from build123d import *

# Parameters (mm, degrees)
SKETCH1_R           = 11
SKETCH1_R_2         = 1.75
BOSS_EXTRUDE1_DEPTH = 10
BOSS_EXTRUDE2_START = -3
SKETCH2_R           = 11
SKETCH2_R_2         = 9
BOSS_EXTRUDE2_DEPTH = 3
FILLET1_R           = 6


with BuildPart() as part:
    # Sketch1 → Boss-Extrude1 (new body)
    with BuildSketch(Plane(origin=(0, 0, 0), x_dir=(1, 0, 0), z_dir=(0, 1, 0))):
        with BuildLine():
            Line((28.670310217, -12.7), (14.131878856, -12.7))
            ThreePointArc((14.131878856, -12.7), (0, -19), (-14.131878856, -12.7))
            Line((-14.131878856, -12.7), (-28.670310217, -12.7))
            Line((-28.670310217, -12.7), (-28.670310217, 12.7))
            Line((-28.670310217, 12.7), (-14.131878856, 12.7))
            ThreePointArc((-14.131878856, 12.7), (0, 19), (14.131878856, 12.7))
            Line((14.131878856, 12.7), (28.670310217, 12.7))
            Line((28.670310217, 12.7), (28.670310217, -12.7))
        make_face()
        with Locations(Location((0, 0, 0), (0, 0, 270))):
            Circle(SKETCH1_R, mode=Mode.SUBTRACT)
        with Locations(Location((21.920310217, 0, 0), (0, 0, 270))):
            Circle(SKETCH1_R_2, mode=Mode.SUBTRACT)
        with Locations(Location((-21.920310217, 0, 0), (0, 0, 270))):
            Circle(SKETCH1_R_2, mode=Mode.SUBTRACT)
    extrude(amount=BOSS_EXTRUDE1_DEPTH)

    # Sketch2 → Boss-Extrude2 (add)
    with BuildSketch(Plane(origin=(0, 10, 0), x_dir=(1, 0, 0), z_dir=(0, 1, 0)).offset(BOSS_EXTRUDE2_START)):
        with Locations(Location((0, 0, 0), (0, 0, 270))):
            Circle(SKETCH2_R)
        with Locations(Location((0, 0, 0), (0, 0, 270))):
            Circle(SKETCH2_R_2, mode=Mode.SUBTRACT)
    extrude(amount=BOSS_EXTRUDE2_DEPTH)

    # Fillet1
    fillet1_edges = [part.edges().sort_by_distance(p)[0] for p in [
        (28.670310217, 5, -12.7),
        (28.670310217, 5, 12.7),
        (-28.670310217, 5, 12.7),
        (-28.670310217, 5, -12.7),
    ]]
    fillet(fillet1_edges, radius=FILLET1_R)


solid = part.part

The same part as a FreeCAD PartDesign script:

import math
import FreeCAD as App
import Part
import Sketcher

V = App.Vector


def edges_at(feature, points):
    """Names of the edges that pass closest to the given points."""
    edges = feature.Shape.Edges
    near = lambda p: min(range(len(edges)), key=lambda i: edges[i].distToShape(Part.Vertex(*p))[0])
    return sorted({f"Edge{near(p) + 1}" for p in points})

doc = App.newDocument("Part")
body = doc.addObject("PartDesign::Body", "Body")

sketch1 = body.newObject("Sketcher::SketchObject", "Sketch")
sketch1.AttachmentSupport = (doc.getObject("XZ_Plane"), [""])
sketch1.MapMode = "FlatFace"
sketch1.addGeometry([
    Part.LineSegment(V(14.1, 12.7, 0), V(28.7, 12.7, 0)),
    Part.LineSegment(V(28.7, 12.7, 0), V(28.7, -12.7, 0)),
    Part.LineSegment(V(28.7, -12.7, 0), V(14.1, -12.7, 0)),
    Part.ArcOfCircle(Part.Circle(V(0, 0, 0), V(0, 0, 1), 19), math.radians(-138), math.radians(-42)),
    Part.LineSegment(V(-14.1, -12.7, 0), V(-28.7, -12.7, 0)),
    Part.LineSegment(V(-28.7, -12.7, 0), V(-28.7, 12.7, 0)),
    Part.LineSegment(V(-28.7, 12.7, 0), V(-14.1, 12.7, 0)),
    Part.ArcOfCircle(Part.Circle(V(0, 0, 0), V(0, 0, 1), 19), math.radians(42), math.radians(138)),
    Part.Circle(V(21.9, 0, 0), V(0, 0, 1), 1.8),
    Part.Circle(V(0, 0, 0), V(0, 0, 1), 11),
    Part.Circle(V(-21.9, 0, 0), V(0, 0, 1), 1.8),
], False)
sketch1.addConstraint([
    Sketcher.Constraint("Coincident", 0, 2, 1, 1),
    Sketcher.Constraint("Coincident", 1, 2, 2, 1),
    Sketcher.Constraint("Coincident", 2, 2, 3, 2),
    Sketcher.Constraint("Coincident", 3, 1, 4, 1),
    Sketcher.Constraint("Coincident", 4, 2, 5, 1),
    Sketcher.Constraint("Coincident", 5, 2, 6, 1),
    Sketcher.Constraint("Coincident", 6, 2, 7, 2),
    Sketcher.Constraint("Coincident", 7, 1, 0, 1),
    Sketcher.Constraint("Horizontal", 0),
    Sketcher.Constraint("Vertical", 1),
    Sketcher.Constraint("Horizontal", 2),
    Sketcher.Constraint("Horizontal", 4),
    Sketcher.Constraint("Vertical", 5),
    Sketcher.Constraint("Horizontal", 6),
    Sketcher.Constraint("Coincident", 3, 3, -1, 1),
    Sketcher.Constraint("Coincident", 7, 3, -1, 1),
    Sketcher.Constraint("Coincident", 9, 3, -1, 1),
    Sketcher.Constraint("Equal", 3, 7),
    Sketcher.Constraint("Equal", 8, 10),
    Sketcher.Constraint("Symmetric", 8, 3, 10, 3, -1, 1),
    Sketcher.Constraint("Symmetric", 0, 2, 4, 2, -1, 1),
    Sketcher.Constraint("PointOnObject", 8, 3, -1),
    Sketcher.Constraint("Horizontal", 2, 2, 3, 1),
    Sketcher.Constraint("Horizontal", 0, 2, 5, 2),
    Sketcher.Constraint("Diameter", 9, 22.0),
    Sketcher.Constraint("Radius", 3, 19.0),
    Sketcher.Constraint("Diameter", 8, 3.5),
    Sketcher.Constraint("DistanceY", 1, 2, 1, 1, 25.4),
    Sketcher.Constraint("DistanceX", 8, 3, 0, 2, 6.75),
    Sketcher.Constraint("DistanceX", 0, 1, 0, 2, 14.538431),
])
pad1 = body.newObject("PartDesign::Pad", "Pad")
pad1.Profile = sketch1
pad1.Length = 10
pad1.Reversed = True

sketch2 = body.newObject("Sketcher::SketchObject", "Sketch001")
sketch2.AttachmentSupport = (doc.getObject("XZ_Plane"), [""])
sketch2.MapMode = "FlatFace"
sketch2.AttachmentOffset = App.Placement(V(0, 0, -7), App.Rotation())
sketch2.addGeometry([
    Part.Circle(V(0, 0, 0), V(0, 0, 1), 11),
    Part.Circle(V(0, 0, 0), V(0, 0, 1), 9),
], False)
sketch2.addConstraint([
    Sketcher.Constraint("Coincident", 0, 3, -1, 1),
    Sketcher.Constraint("Coincident", 1, 3, -1, 1),
    Sketcher.Constraint("Diameter", 0, 22.0),
    Sketcher.Constraint("Diameter", 1, 18.0),
])
pad2 = body.newObject("PartDesign::Pad", "Pad001")
pad2.Profile = sketch2
pad2.Length = 3
pad2.Reversed = True
doc.recompute()

fillet = body.newObject("PartDesign::Fillet", "Fillet")
fillet.Base = (pad2, edges_at(pad2, [
    (28.67, 5, -12.7),
    (28.67, 5, 12.7),
    (-28.67, 5, 12.7),
    (-28.67, 5, -12.7),
]))
fillet.Radius = 6

doc.recompute()
